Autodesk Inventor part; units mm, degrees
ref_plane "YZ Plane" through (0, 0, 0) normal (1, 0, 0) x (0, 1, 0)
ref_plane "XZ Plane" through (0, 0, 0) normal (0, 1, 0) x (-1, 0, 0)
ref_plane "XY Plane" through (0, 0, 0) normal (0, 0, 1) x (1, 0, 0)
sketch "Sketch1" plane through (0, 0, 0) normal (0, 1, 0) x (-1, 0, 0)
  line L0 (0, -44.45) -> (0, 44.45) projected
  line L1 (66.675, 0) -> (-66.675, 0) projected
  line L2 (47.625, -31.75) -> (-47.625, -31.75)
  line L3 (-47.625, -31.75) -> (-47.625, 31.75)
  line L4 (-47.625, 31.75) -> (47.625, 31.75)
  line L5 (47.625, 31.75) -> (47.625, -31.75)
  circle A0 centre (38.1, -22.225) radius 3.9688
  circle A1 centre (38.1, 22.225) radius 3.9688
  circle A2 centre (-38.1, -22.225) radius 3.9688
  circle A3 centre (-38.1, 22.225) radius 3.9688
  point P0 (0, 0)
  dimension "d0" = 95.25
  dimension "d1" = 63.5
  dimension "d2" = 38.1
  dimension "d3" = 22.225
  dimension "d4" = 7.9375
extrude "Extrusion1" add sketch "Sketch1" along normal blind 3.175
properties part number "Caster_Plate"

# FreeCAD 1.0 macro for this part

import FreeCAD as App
import Part
import Sketcher

V = App.Vector
Q = App.Units.Quantity


def add_polygon(sketch, points):
    """Adds a closed chain of lines whose ends are joined by coincident constraints."""
    first, n = sketch.GeometryCount, len(points)
    for a, b in zip(points, points[1:] + points[:1]):
        sketch.addGeometry(Part.LineSegment(App.Vector(*a, 0), App.Vector(*b, 0)), False)
    for i in range(n):
        sketch.addConstraint(Sketcher.Constraint("Coincident", first + i, 2, first + (i + 1) % n, 1))

doc = App.newDocument("Part")
body = doc.addObject("PartDesign::Body", "Body")

# Sketch on XZ plane
sketch1 = body.newObject("Sketcher::SketchObject", "Sketch")
sketch1.AttachmentSupport = (doc.getObject("XZ_Plane"), [""])
sketch1.MapMode = "FlatFace"
add_polygon(sketch1, [(47.625, -31.75), (-47.625, -31.75), (-47.625, 31.75), (47.625, 31.75)])  # lines 0-3
sketch1.addGeometry(Part.Circle(V(38.1, -22.225, 0), V(0, 0, 1), 3.9688), False)  # 4
sketch1.addGeometry(Part.Circle(V(38.1, 22.225, 0), V(0, 0, 1), 3.9688), False)  # 5
sketch1.addGeometry(Part.Circle(V(-38.1, -22.225, 0), V(0, 0, 1), 3.9688), False)  # 6
sketch1.addGeometry(Part.Circle(V(-38.1, 22.225, 0), V(0, 0, 1), 3.9688), False)  # 7
sketch1.addConstraint([
    Sketcher.Constraint("Horizontal", 0),
    Sketcher.Constraint("Vertical", 1),
    Sketcher.Constraint("Horizontal", 2),
    Sketcher.Constraint("Vertical", 3),
    Sketcher.Constraint("Equal", 4, 5),
    Sketcher.Constraint("Equal", 5, 6),
    Sketcher.Constraint("Equal", 6, 7),
    Sketcher.Constraint("Symmetric", 5, 3, 6, 3, -1, 1),
    Sketcher.Constraint("Symmetric", 4, 3, 7, 3, -1, 1),
    Sketcher.Constraint("Symmetric", 0, 2, 2, 2, -1, 1),
    Sketcher.Constraint("Symmetric", 4, 3, 6, 3, -2),
    Sketcher.Constraint("Diameter", 4, Q("0.3125 in")),
    Sketcher.Constraint("DistanceY", 1, 1, 1, 2, Q("2.5 in")),
    Sketcher.Constraint("DistanceX", 0, 2, 0, 1, Q("3.75 in")),
    Sketcher.Constraint("DistanceX", -1, 1, 4, 3, Q("1.5 in")),
    Sketcher.Constraint("DistanceY", 4, 3, -1, 1, Q("0.875 in")),
])
pad1 = body.newObject("PartDesign::Pad", "Pad")
pad1.Profile = sketch1
pad1.Length = Q("0.125 in")
pad1.Reversed = True

doc.recompute()
